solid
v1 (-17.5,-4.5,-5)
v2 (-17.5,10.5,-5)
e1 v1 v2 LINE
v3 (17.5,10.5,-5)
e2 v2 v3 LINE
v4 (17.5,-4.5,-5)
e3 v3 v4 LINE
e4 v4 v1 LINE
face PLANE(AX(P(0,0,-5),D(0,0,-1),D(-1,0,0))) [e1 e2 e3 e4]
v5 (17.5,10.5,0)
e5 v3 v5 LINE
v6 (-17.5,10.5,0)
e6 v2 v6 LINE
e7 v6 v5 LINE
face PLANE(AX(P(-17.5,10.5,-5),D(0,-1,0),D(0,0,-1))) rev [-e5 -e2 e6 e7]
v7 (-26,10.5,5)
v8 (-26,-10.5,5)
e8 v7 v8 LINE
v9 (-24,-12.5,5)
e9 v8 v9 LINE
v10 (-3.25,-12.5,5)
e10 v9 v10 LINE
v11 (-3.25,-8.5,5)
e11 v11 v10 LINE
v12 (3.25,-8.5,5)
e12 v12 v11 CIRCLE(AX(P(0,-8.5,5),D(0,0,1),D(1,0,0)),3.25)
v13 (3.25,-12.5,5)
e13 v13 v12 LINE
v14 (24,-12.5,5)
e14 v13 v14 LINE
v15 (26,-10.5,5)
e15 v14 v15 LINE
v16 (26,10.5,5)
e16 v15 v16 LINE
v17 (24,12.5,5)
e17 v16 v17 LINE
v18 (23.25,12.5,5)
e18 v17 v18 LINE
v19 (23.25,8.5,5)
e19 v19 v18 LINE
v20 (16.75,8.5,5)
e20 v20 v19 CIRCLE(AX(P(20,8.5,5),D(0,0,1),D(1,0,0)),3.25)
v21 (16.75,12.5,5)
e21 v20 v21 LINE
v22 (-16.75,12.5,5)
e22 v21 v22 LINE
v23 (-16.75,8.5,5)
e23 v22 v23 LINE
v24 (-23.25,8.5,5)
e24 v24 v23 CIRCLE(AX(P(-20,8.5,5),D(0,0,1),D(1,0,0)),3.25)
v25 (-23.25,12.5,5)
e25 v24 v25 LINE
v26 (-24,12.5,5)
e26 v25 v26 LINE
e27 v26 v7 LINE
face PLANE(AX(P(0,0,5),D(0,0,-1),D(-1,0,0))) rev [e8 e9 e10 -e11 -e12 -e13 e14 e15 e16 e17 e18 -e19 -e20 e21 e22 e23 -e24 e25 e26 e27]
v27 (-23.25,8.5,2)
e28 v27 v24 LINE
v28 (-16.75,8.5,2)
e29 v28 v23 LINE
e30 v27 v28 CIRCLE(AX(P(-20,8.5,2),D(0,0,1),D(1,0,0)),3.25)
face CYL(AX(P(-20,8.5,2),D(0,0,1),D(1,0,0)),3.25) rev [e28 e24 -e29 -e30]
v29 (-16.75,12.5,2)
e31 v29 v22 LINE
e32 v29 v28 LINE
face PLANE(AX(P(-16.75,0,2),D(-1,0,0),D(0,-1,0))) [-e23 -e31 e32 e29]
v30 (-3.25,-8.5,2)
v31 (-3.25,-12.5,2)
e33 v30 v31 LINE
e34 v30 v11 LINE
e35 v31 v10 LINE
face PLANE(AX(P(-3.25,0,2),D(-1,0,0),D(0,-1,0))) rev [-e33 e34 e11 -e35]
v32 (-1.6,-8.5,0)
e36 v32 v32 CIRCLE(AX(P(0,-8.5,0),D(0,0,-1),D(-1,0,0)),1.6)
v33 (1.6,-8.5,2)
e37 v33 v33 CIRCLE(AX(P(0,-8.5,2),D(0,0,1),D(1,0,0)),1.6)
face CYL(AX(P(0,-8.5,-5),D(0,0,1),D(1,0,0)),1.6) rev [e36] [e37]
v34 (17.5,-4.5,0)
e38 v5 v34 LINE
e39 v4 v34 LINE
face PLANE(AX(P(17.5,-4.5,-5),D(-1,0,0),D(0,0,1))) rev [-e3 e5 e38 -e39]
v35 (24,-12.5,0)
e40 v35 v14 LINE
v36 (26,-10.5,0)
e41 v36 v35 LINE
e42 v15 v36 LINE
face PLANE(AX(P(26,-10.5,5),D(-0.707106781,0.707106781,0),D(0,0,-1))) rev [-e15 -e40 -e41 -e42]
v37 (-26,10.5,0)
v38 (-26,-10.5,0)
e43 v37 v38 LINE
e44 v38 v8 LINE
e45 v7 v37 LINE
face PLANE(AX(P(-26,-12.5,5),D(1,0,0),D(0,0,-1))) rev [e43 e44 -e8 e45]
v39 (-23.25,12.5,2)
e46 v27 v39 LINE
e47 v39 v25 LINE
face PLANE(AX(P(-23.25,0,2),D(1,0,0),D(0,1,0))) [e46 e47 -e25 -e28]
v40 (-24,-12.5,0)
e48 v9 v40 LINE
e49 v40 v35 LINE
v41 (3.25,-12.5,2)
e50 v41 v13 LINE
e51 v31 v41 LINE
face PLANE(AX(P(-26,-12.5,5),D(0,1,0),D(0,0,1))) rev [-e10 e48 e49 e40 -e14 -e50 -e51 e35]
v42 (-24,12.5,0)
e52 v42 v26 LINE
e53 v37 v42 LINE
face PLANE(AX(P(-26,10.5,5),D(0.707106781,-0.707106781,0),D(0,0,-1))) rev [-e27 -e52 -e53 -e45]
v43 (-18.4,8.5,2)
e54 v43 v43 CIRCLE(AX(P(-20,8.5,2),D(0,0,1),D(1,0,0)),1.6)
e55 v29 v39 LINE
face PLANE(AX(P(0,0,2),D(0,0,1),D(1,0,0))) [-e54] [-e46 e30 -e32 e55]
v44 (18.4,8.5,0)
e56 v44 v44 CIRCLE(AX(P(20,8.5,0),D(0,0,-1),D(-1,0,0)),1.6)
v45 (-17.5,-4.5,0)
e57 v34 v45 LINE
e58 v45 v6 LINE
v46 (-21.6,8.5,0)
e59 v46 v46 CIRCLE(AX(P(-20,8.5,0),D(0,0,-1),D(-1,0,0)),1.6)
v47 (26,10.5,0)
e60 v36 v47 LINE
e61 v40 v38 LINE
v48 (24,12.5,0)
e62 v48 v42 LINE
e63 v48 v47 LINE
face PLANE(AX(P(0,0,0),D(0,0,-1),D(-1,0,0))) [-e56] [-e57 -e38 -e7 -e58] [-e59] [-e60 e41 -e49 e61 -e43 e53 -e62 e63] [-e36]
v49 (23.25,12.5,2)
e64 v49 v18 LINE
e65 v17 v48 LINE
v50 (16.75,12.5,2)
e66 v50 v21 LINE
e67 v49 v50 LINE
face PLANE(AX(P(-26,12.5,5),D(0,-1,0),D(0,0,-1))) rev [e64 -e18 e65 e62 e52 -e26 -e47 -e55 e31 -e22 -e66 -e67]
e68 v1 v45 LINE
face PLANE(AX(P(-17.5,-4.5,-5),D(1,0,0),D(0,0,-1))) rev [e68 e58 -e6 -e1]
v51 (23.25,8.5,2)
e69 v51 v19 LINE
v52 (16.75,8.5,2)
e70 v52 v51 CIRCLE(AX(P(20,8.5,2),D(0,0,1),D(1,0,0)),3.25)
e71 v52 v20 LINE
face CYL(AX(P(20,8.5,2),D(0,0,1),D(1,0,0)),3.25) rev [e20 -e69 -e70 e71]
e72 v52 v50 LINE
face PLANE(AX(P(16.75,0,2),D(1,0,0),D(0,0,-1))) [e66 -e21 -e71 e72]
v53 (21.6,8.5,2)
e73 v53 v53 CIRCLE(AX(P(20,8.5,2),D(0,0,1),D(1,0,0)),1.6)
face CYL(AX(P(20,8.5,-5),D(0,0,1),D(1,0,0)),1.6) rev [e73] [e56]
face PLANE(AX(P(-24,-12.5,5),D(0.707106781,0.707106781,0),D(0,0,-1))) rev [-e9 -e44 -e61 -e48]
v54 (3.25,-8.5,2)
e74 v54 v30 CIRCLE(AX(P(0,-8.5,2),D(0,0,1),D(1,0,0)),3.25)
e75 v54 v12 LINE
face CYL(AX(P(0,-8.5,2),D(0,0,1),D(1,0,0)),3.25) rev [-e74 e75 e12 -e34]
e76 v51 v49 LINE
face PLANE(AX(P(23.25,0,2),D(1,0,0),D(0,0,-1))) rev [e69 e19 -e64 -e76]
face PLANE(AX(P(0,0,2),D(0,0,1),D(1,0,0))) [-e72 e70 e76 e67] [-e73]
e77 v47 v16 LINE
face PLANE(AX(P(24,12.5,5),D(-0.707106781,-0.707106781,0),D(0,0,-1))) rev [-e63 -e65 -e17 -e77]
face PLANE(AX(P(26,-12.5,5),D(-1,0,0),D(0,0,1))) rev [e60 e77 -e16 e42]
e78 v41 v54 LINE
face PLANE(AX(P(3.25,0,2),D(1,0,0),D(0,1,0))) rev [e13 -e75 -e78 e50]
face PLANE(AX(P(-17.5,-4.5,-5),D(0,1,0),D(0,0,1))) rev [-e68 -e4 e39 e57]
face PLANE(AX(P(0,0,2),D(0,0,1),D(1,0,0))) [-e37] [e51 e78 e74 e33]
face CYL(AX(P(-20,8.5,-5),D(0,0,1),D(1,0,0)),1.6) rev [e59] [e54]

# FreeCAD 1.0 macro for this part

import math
import FreeCAD as App
import Part
import Sketcher

V = App.Vector


def edges_at(feature, points):
    """Names of the edges that pass closest to the given points."""
    edges = feature.Shape.Edges
    near = lambda p: min(range(len(edges)), key=lambda i: edges[i].distToShape(Part.Vertex(*p))[0])
    return sorted({f"Edge{near(p) + 1}" for p in points})


def add_polygon(sketch, points):
    """Adds a closed chain of lines whose ends are joined by coincident constraints."""
    first, n = sketch.GeometryCount, len(points)
    for a, b in zip(points, points[1:] + points[:1]):
        sketch.addGeometry(Part.LineSegment(App.Vector(*a, 0), App.Vector(*b, 0)), False)
    for i in range(n):
        sketch.addConstraint(Sketcher.Constraint("Coincident", first + i, 2, first + (i + 1) % n, 1))

doc = App.newDocument("Part")
params = doc.addObject("Spreadsheet::Sheet", "Params")
for row, (alias, value) in enumerate([
    ("sketch1_width", "52 mm"),
    ("sketch1_height", "25 mm"),
    ("pad1_length", "5 mm"),
    ("chamfer_size", "2 mm"),
    ("sketch2_width", "35 mm"),
    ("sketch2_height", "15 mm"),
    ("pad2_length", "5 mm"),
    ("sketch3_height", "4 mm"),
    ("sketch3_radius", "3.25 mm"),
    ("pocket1_length", "3 mm"),
    ("sketch4_diameter", "3.2 mm"),
], start=1):
    params.set(f"A{row}", alias)
    params.set(f"B{row}", "=" + value)
    params.setAlias(f"B{row}", alias)

body = doc.addObject("PartDesign::Body", "Body")

# Sketch on XY plane
sketch1 = doc.addObject("Sketcher::SketchObject", "Sketch")
body.addObject(sketch1)
sketch1.AttachmentSupport = (doc.XY_Plane, [""])
sketch1.MapMode = "FlatFace"
add_polygon(sketch1, [(-26, 12.5), (-26, -12.5), (26, -12.5), (26, 12.5)])  # lines 0-3
sketch1.addConstraint([
    Sketcher.Constraint("Vertical", 0),
    Sketcher.Constraint("Horizontal", 1),
    Sketcher.Constraint("Vertical", 2),
    Sketcher.Constraint("Horizontal", 3),
    Sketcher.Constraint("Symmetric", 0, 2, 2, 2, -1, 1),
    Sketcher.Constraint("DistanceX", 1, 1, 1, 2, 52.0),
    Sketcher.Constraint("DistanceY", 0, 2, 0, 1, 25.0),
])
sketch1.setExpression("Constraints[9]", "Params.sketch1_width")
sketch1.setExpression("Constraints[10]", "Params.sketch1_height")
pad1 = doc.addObject("PartDesign::Pad", "Pad")
body.addObject(pad1)
pad1.Profile = sketch1
pad1.setExpression("Length", "Params.pad1_length")
doc.recompute()

chamfer = doc.addObject("PartDesign::Chamfer", "Chamfer")
body.addObject(chamfer)
chamfer.Base = (pad1, edges_at(pad1, [
    (26, -12.5, 2.5),
    (-26, -12.5, 2.5),
    (-26, 12.5, 2.5),
    (26, 12.5, 2.5),
]))
chamfer.setExpression("Size", "Params.chamfer_size")

# Sketch on XY plane
sketch2 = doc.addObject("Sketcher::SketchObject", "Sketch001")
body.addObject(sketch2)
sketch2.AttachmentSupport = (doc.XY_Plane, [""])
sketch2.MapMode = "FlatFace"
add_polygon(sketch2, [(17.5, 10.5), (17.5, -4.5), (-17.5, -4.5), (-17.5, 10.5)])  # lines 0-3
sketch2.addConstraint([
    Sketcher.Constraint("Vertical", 0),
    Sketcher.Constraint("Horizontal", 1),
    Sketcher.Constraint("Vertical", 2),
    Sketcher.Constraint("Horizontal", 3),
    Sketcher.Constraint("DistanceX", 1, 2, 1, 1, 35.0),
    Sketcher.Constraint("DistanceY", 0, 2, 0, 1, 15.0),
    Sketcher.Constraint("DistanceX", -1, 1, 0, 2, 17.5),
    Sketcher.Constraint("DistanceY", 0, 2, -1, 1, 4.5),
])
sketch2.setExpression("Constraints[8]", "Params.sketch2_width")
sketch2.setExpression("Constraints[9]", "Params.sketch2_height")
pad2 = doc.addObject("PartDesign::Pad", "Pad001")
body.addObject(pad2)
pad2.Profile = sketch2
pad2.setExpression("Length", "Params.pad2_length")
pad2.Reversed = True

# Sketch on XY plane
sketch3 = doc.addObject("Sketcher::SketchObject", "Sketch002")
body.addObject(sketch3)
sketch3.AttachmentSupport = (doc.XY_Plane, [""])
sketch3.MapMode = "FlatFace"
sketch3.AttachmentOffset = App.Placement(V(0, 0, 5), App.Rotation())
sketch3.addGeometry([
    Part.LineSegment(V(3.25, -12.5, 0), V(3.25, -8.5, 0)),  # 0
    Part.ArcOfCircle(Part.Circle(V(0, -8.5, 0), V(0, 0, 1), 3.25), math.radians(0), math.radians(180)),  # 1
    Part.LineSegment(V(-3.25, -8.5, 0), V(-3.25, -12.5, 0)),  # 2
    Part.LineSegment(V(-3.25, -12.5, 0), V(3.25, -12.5, 0)),  # 3
    Part.LineSegment(V(-23.25, 12.5, 0), V(-23.25, 8.5, 0)),  # 4
    Part.ArcOfCircle(Part.Circle(V(-20, 8.5, 0), V(0, 0, 1), 3.25), math.radians(180), math.radians(360)),  # 5
    Part.LineSegment(V(-16.75, 8.5, 0), V(-16.75, 12.5, 0)),  # 6
    Part.LineSegment(V(-16.75, 12.5, 0), V(-23.25, 12.5, 0)),  # 7
    Part.LineSegment(V(16.75, 12.5, 0), V(16.75, 8.5, 0)),  # 8
    Part.ArcOfCircle(Part.Circle(V(20, 8.5, 0), V(0, 0, 1), 3.25), math.radians(180), math.radians(360)),  # 9
    Part.LineSegment(V(23.25, 8.5, 0), V(23.25, 12.5, 0)),  # 10
    Part.LineSegment(V(23.25, 12.5, 0), V(16.75, 12.5, 0)),  # 11
], False)
sketch3.addConstraint([
    Sketcher.Constraint("Tangent", 0, 2, 1, 1),
    Sketcher.Constraint("Tangent", 1, 2, 2, 1),
    Sketcher.Constraint("Coincident", 2, 2, 3, 1),
    Sketcher.Constraint("Coincident", 3, 2, 0, 1),
    Sketcher.Constraint("Tangent", 4, 2, 5, 1),
    Sketcher.Constraint("Tangent", 5, 2, 6, 1),
    Sketcher.Constraint("Coincident", 6, 2, 7, 1),
    Sketcher.Constraint("Coincident", 7, 2, 4, 1),
    Sketcher.Constraint("Tangent", 8, 2, 9, 1),
    Sketcher.Constraint("Tangent", 9, 2, 10, 1),
    Sketcher.Constraint("Coincident", 10, 2, 11, 1),
    Sketcher.Constraint("Coincident", 11, 2, 8, 1),
    Sketcher.Constraint("Vertical", 0),
    Sketcher.Constraint("Vertical", 2),
    Sketcher.Constraint("Horizontal", 3),
    Sketcher.Constraint("Vertical", 4),
    Sketcher.Constraint("Vertical", 6),
    Sketcher.Constraint("Horizontal", 7),
    Sketcher.Constraint("Vertical", 8),
    Sketcher.Constraint("Vertical", 10),
    Sketcher.Constraint("Horizontal", 11),
    Sketcher.Constraint("Equal", 1, 5),
    Sketcher.Constraint("Equal", 5, 9),
    Sketcher.Constraint("Symmetric", 5, 3, 9, 3, -2),
    Sketcher.Constraint("PointOnObject", 1, 3, -2),
    Sketcher.Constraint("Horizontal", 7, 2, 10, 2),
    Sketcher.Constraint("Equal", 2, 4),
    Sketcher.Constraint("DistanceY", 0, 1, 0, 2, 4.0),
    Sketcher.Constraint("Radius", 1, 3.25),
    Sketcher.Constraint("DistanceX", 5, 3, -1, 1, 20.0),
    Sketcher.Constraint("DistanceY", 1, 3, 5, 3, 17.0),
    Sketcher.Constraint("DistanceY", 1, 3, -1, 1, 8.5),
])
sketch3.setExpression("Constraints[27]", "Params.sketch3_height")
sketch3.setExpression("Constraints[28]", "Params.sketch3_radius")
pocket1 = doc.addObject("PartDesign::Pocket", "Pocket")
body.addObject(pocket1)
pocket1.Profile = sketch3
pocket1.setExpression("Length", "Params.pocket1_length")

# Sketch on XY plane
sketch4 = doc.addObject("Sketcher::SketchObject", "Sketch003")
body.addObject(sketch4)
sketch4.AttachmentSupport = (doc.XY_Plane, [""])
sketch4.MapMode = "FlatFace"
sketch4.AttachmentOffset = App.Placement(V(0, 0, 2), App.Rotation())
sketch4.addGeometry([
    Part.Circle(V(0, -8.5, 0), V(0, 0, 1), 1.6),
    Part.Circle(V(-20, 8.5, 0), V(0, 0, 1), 1.6),
    Part.Circle(V(20, 8.5, 0), V(0, 0, 1), 1.6),
], False)
sketch4.addConstraint([
    Sketcher.Constraint("Equal", 0, 1),
    Sketcher.Constraint("Equal", 1, 2),
    Sketcher.Constraint("Symmetric", 1, 3, 2, 3, -2),
    Sketcher.Constraint("PointOnObject", 0, 3, -2),
    Sketcher.Constraint("Diameter", 0, 3.2),
    Sketcher.Constraint("DistanceX", 1, 3, -1, 1, 20.0),
    Sketcher.Constraint("DistanceY", 0, 3, 1, 3, 17.0),
    Sketcher.Constraint("DistanceY", 0, 3, -1, 1, 8.5),
])
sketch4.setExpression("Constraints[4]", "Params.sketch4_diameter")
pocket2 = doc.addObject("PartDesign::Pocket", "Pocket001")
body.addObject(pocket2)
pocket2.Profile = sketch4
pocket2.Type = "ThroughAll"

doc.recompute()
